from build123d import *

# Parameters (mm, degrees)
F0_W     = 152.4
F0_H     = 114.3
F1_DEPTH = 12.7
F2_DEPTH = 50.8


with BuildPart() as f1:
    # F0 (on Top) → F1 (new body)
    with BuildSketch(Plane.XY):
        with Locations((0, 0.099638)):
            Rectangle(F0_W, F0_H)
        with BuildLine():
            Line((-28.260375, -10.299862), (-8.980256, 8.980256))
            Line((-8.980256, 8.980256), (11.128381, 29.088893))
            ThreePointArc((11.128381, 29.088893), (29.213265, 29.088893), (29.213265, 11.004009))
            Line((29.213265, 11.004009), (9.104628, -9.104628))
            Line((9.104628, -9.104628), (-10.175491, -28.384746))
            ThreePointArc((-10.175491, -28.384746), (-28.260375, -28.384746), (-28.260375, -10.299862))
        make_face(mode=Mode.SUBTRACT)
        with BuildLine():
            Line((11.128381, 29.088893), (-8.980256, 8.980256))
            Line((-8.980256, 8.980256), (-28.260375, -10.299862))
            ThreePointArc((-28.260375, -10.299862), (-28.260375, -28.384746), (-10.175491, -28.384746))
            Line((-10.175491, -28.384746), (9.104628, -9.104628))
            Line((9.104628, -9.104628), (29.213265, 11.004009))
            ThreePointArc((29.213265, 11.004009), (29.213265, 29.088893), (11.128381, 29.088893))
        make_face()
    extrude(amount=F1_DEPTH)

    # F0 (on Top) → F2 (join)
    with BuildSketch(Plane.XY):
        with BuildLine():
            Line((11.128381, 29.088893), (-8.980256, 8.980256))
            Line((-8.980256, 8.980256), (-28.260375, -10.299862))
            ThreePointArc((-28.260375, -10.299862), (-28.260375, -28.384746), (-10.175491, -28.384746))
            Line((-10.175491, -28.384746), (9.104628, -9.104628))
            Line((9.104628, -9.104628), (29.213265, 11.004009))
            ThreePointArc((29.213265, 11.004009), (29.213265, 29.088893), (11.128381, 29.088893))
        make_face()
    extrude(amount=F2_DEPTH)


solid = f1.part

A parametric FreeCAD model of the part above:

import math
import FreeCAD as App
import Part
import Sketcher
Q = App.Units.Quantity

doc = App.newDocument("Part")
params = doc.addObject("Spreadsheet::Sheet", "Params")
for row, (alias, value) in enumerate([
    ("sketch1_width", "6 in"),
    ("sketch1_height", "4.5 in"),
    ("pad1_length", "0.5 in"),
    ("pad2_length", "2 in"),
], start=1):
    params.set(f"A{row}", alias)
    params.set(f"B{row}", "=" + value)
    params.setAlias(f"B{row}", alias)

body = doc.addObject("PartDesign::Body", "Body")

# Sketch on XY plane
sketch1 = body.newObject("Sketcher::SketchObject", "Sketch")
sketch1.AttachmentSupport = (doc.getObject("XY_Plane"), [""])
sketch1.MapMode = "FlatFace"
sketch1.addGeometry(Part.LineSegment(App.Vector(-76, 57, 0), App.Vector(-76, -57, 0)), False)
sketch1.addGeometry(Part.LineSegment(App.Vector(-76, -57, 0), App.Vector(76, -57, 0)), False)
sketch1.addGeometry(Part.LineSegment(App.Vector(76, -57, 0), App.Vector(76, 57, 0)), False)
sketch1.addGeometry(Part.LineSegment(App.Vector(76, 57, 0), App.Vector(-76, 57, 0)), False)
sketch1.addConstraint(Sketcher.Constraint("Coincident", 0, 2, 1, 1))
sketch1.addConstraint(Sketcher.Constraint("Coincident", 1, 2, 2, 1))
sketch1.addConstraint(Sketcher.Constraint("Coincident", 2, 2, 3, 1))
sketch1.addConstraint(Sketcher.Constraint("Coincident", 3, 2, 0, 1))
sketch1.addConstraint(Sketcher.Constraint("Vertical", 0))
sketch1.addConstraint(Sketcher.Constraint("Horizontal", 1))
sketch1.addConstraint(Sketcher.Constraint("Vertical", 2))
sketch1.addConstraint(Sketcher.Constraint("Horizontal", 3))
sketch1.addConstraint(Sketcher.Constraint("DistanceX", 1, 1, 1, 2, Q("6 in")))
sketch1.addConstraint(Sketcher.Constraint("DistanceY", 0, 2, 0, 1, Q("4.5 in")))
sketch1.addConstraint(Sketcher.Constraint("DistanceX", 0, 2, -1, 1, Q("3 in")))
sketch1.addConstraint(Sketcher.Constraint("DistanceY", 0, 2, -1, 1, Q("57.050362 mm")))
sketch1.setExpression("Constraints[8]", "Params.sketch1_width")
sketch1.setExpression("Constraints[9]", "Params.sketch1_height")
pad1 = body.newObject("PartDesign::Pad", "Pad")
pad1.Profile = sketch1
pad1.setExpression("Length", "Params.pad1_length")

# Sketch on XY plane
sketch2 = body.newObject("Sketcher::SketchObject", "Sketch001")
sketch2.AttachmentSupport = (doc.getObject("XY_Plane"), [""])
sketch2.MapMode = "FlatFace"
sketch2.addGeometry(Part.LineSegment(App.Vector(11, 29, 0), App.Vector(-9, 9, 0)), False)
sketch2.addGeometry(Part.LineSegment(App.Vector(-9, 9, 0), App.Vector(-28, -10, 0)), False)
sketch2.addGeometry(Part.ArcOfCircle(Part.Circle(App.Vector(-19, -19, 0), App.Vector(0, 0, 1), 13), math.radians(135), math.radians(315)), False)
sketch2.addGeometry(Part.LineSegment(App.Vector(-10, -28, 0), App.Vector(9, -9, 0)), False)
sketch2.addGeometry(Part.LineSegment(App.Vector(9, -9, 0), App.Vector(29, 11, 0)), False)
sketch2.addGeometry(Part.ArcOfCircle(Part.Circle(App.Vector(20, 20, 0), App.Vector(0, 0, 1), 13), math.radians(-45), math.radians(135)), False)
sketch2.addConstraint(Sketcher.Constraint("Coincident", 0, 2, 1, 1))
sketch2.addConstraint(Sketcher.Constraint("Tangent", 1, 2, 2, 1))
sketch2.addConstraint(Sketcher.Constraint("Tangent", 2, 2, 3, 1))
sketch2.addConstraint(Sketcher.Constraint("Coincident", 3, 2, 4, 1))
sketch2.addConstraint(Sketcher.Constraint("Tangent", 4, 2, 5, 1))
sketch2.addConstraint(Sketcher.Constraint("Tangent", 5, 2, 0, 1))
sketch2.addConstraint(Sketcher.Constraint("Equal", 2, 5))
sketch2.addConstraint(Sketcher.Constraint("Parallel", 0, 1))
sketch2.addConstraint(Sketcher.Constraint("Parallel", 1, 3))
sketch2.addConstraint(Sketcher.Constraint("Equal", 1, 3))
sketch2.addConstraint(Sketcher.Constraint("Angle", 0, Q("-135 deg")))
sketch2.addConstraint(Sketcher.Constraint("Radius", 2, Q("12.787944 mm")))
sketch2.addConstraint(Sketcher.Constraint("DistanceY", 2, 2, 0, 2, Q("37.365002 mm")))
sketch2.addConstraint(Sketcher.Constraint("DistanceY", -1, 1, 5, 3, Q("20.046451 mm")))
sketch2.addConstraint(Sketcher.Constraint("DistanceY", 1, 2, -1, 1, Q("10.299862 mm")))
sketch2.addConstraint(Sketcher.Constraint("DistanceX", 2, 2, -1, 1, Q("10.175491 mm")))
pad2 = body.newObject("PartDesign::Pad", "Pad001")
pad2.Profile = sketch2
pad2.setExpression("Length", "Params.pad2_length")

doc.recompute()
